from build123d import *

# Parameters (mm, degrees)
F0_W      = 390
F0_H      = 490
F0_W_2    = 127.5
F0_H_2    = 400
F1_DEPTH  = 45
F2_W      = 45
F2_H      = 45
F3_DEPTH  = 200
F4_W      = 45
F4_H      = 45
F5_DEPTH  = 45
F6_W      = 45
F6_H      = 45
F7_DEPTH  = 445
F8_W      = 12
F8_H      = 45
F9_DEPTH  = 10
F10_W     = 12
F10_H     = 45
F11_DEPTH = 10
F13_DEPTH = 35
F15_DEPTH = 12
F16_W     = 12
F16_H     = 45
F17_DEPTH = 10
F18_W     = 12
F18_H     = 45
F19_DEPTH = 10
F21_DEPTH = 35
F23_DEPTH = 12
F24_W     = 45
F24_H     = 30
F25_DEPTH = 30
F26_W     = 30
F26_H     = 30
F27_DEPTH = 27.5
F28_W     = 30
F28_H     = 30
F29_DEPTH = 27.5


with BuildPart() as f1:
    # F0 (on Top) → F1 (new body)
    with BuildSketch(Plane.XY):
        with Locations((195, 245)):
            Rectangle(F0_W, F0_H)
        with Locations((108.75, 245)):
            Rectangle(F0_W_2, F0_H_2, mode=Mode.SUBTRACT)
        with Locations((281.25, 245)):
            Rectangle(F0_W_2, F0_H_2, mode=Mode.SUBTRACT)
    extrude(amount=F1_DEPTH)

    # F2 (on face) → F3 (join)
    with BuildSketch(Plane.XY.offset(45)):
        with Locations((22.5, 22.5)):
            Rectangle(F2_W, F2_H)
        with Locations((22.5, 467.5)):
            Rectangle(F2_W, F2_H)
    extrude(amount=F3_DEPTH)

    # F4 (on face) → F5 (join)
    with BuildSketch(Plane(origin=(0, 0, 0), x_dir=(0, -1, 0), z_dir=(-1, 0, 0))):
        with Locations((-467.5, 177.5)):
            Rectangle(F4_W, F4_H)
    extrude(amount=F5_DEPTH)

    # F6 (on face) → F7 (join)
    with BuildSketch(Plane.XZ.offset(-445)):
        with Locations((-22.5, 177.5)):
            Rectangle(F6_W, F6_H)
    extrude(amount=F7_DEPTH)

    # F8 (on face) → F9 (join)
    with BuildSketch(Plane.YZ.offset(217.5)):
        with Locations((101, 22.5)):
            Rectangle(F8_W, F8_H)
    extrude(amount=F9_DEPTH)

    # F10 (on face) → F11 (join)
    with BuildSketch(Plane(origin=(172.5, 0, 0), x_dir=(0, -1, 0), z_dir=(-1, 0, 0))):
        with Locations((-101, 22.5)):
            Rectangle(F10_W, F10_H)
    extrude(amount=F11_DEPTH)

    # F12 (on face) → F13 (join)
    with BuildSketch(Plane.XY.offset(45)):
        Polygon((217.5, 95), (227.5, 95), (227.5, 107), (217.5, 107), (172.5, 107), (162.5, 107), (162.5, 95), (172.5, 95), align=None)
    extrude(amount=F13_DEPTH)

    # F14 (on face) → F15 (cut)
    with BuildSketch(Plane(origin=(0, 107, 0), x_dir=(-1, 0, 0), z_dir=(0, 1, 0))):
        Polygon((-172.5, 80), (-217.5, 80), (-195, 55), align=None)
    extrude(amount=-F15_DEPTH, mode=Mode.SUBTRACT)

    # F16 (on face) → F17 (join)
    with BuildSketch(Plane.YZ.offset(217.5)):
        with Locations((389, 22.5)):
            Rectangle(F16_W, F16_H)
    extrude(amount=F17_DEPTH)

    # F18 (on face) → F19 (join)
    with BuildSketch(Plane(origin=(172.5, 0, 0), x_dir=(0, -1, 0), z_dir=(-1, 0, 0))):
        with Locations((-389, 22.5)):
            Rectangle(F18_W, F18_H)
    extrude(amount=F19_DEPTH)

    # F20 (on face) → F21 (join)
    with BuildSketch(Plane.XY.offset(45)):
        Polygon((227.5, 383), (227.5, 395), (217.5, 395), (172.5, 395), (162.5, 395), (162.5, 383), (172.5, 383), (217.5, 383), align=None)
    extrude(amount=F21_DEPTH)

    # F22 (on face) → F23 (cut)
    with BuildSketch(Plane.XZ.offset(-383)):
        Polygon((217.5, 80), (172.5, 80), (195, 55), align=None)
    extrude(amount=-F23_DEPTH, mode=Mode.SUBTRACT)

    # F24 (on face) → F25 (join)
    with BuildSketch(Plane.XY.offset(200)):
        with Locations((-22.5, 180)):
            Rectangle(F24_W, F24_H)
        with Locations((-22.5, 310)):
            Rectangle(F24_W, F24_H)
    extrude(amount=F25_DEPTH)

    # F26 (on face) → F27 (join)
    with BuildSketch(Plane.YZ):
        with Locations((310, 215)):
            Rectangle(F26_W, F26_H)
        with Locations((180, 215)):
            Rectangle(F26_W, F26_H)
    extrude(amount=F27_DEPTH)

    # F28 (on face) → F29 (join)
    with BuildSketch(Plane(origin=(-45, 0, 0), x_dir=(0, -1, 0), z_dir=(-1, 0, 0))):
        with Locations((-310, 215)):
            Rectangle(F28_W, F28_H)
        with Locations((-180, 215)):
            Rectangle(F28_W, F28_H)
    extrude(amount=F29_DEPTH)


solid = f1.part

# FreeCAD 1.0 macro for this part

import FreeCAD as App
import Part
import Sketcher
Q = App.Units.Quantity


def add_polygon(sketch, points):
    """Adds a closed chain of lines whose ends are joined by coincident constraints."""
    first, n = sketch.GeometryCount, len(points)
    for a, b in zip(points, points[1:] + points[:1]):
        sketch.addGeometry(Part.LineSegment(App.Vector(*a, 0), App.Vector(*b, 0)), False)
    for i in range(n):
        sketch.addConstraint(Sketcher.Constraint("Coincident", first + i, 2, first + (i + 1) % n, 1))

doc = App.newDocument("Part")
body = doc.addObject("PartDesign::Body", "Body")

sketch1 = doc.addObject("Sketcher::SketchObject", "Sketch")
body.addObject(sketch1)
sketch1.AttachmentSupport = (doc.XY_Plane, [""])
sketch1.MapMode = "FlatFace"
add_polygon(sketch1, [(0, 490), (0, 0), (390, 0), (390, 490)])
add_polygon(sketch1, [(172, 45), (45, 45), (45, 445), (172, 445)])
add_polygon(sketch1, [(345, 45), (218, 45), (218, 445), (345, 445)])
sketch1.addConstraint([
    Sketcher.Constraint("Vertical", 0),
    Sketcher.Constraint("Horizontal", 1),
    Sketcher.Constraint("Vertical", 2),
    Sketcher.Constraint("Horizontal", 3),
    Sketcher.Constraint("Horizontal", 4),
    Sketcher.Constraint("Vertical", 5),
    Sketcher.Constraint("Horizontal", 6),
    Sketcher.Constraint("Vertical", 7),
    Sketcher.Constraint("Horizontal", 8),
    Sketcher.Constraint("Vertical", 9),
    Sketcher.Constraint("Horizontal", 10),
    Sketcher.Constraint("Vertical", 11),
    Sketcher.Constraint("Coincident", 0, 2, -1, 1),
    Sketcher.Constraint("Horizontal", 7, 2, 8, 2),
    Sketcher.Constraint("Horizontal", 6, 2, 9, 2),
    Sketcher.Constraint("Equal", 6, 8),
    Sketcher.Constraint("DistanceX", 1, 1, 1, 2, Q("390 mm")),
    Sketcher.Constraint("DistanceY", 0, 2, 0, 1, Q("490 mm")),
    Sketcher.Constraint("DistanceY", 5, 1, 5, 2, Q("400 mm")),
    Sketcher.Constraint("DistanceX", 4, 2, 4, 1, Q("127.5 mm")),
    Sketcher.Constraint("DistanceX", -1, 1, 4, 2, Q("45 mm")),
    Sketcher.Constraint("DistanceY", -1, 1, 4, 2, Q("45 mm")),
    Sketcher.Constraint("DistanceX", -1, 1, 10, 2, Q("345 mm")),
])
pad1 = doc.addObject("PartDesign::Pad", "Pad")
body.addObject(pad1)
pad1.Profile = sketch1
pad1.Length = 45

sketch2 = doc.addObject("Sketcher::SketchObject", "Sketch001")
body.addObject(sketch2)
sketch2.AttachmentSupport = (doc.XY_Plane, [""])
sketch2.MapMode = "FlatFace"
sketch2.AttachmentOffset = App.Placement(App.Vector(0, 0, 45), App.Rotation())
add_polygon(sketch2, [(0, 45), (0, 0), (45, 0), (45, 45)])
add_polygon(sketch2, [(0, 490), (0, 445), (45, 445), (45, 490)])
sketch2.addConstraint([
    Sketcher.Constraint("Vertical", 0),
    Sketcher.Constraint("Horizontal", 1),
    Sketcher.Constraint("Vertical", 2),
    Sketcher.Constraint("Horizontal", 3),
    Sketcher.Constraint("Vertical", 4),
    Sketcher.Constraint("Horizontal", 5),
    Sketcher.Constraint("Vertical", 6),
    Sketcher.Constraint("Horizontal", 7),
    Sketcher.Constraint("Coincident", 0, 2, -1, 1),
    Sketcher.Constraint("PointOnObject", 4, 2, -2),
    Sketcher.Constraint("Vertical", 2, 2, 5, 2),
    Sketcher.Constraint("Equal", 7, 0),
    Sketcher.Constraint("Equal", 2, 4),
    Sketcher.Constraint("DistanceX", 1, 1, 1, 2, Q("45 mm")),
    Sketcher.Constraint("DistanceY", -1, 1, 4, 2, Q("445 mm")),
])
pad2 = doc.addObject("PartDesign::Pad", "Pad001")
body.addObject(pad2)
pad2.Profile = sketch2
pad2.Length = 200

sketch3 = doc.addObject("Sketcher::SketchObject", "Sketch002")
body.addObject(sketch3)
sketch3.AttachmentSupport = (doc.YZ_Plane, [""])
sketch3.MapMode = "FlatFace"
add_polygon(sketch3, [(490, 200), (490, 155), (445, 155), (445, 200)])
sketch3.addConstraint([
    Sketcher.Constraint("Vertical", 0),
    Sketcher.Constraint("Horizontal", 1),
    Sketcher.Constraint("Vertical", 2),
    Sketcher.Constraint("Horizontal", 3),
    Sketcher.Constraint("Equal", 3, 0),
    Sketcher.Constraint("DistanceX", 1, 2, 1, 1, Q("45 mm")),
    Sketcher.Constraint("DistanceX", -1, 1, 0, 2, Q("490 mm")),
    Sketcher.Constraint("DistanceY", -1, 1, 0, 2, Q("155 mm")),
])
pad3 = doc.addObject("PartDesign::Pad", "Pad002")
body.addObject(pad3)
pad3.Profile = sketch3
pad3.Length = 45
pad3.Reversed = True

sketch4 = doc.addObject("Sketcher::SketchObject", "Sketch003")
body.addObject(sketch4)
sketch4.AttachmentSupport = (doc.XZ_Plane, [""])
sketch4.MapMode = "FlatFace"
sketch4.AttachmentOffset = App.Placement(App.Vector(0, 0, -445), App.Rotation())
add_polygon(sketch4, [(-45, 200), (-45, 155), (0, 155), (0, 200)])
sketch4.addConstraint([
    Sketcher.Constraint("Vertical", 0),
    Sketcher.Constraint("Horizontal", 1),
    Sketcher.Constraint("Vertical", 2),
    Sketcher.Constraint("Horizontal", 3),
    Sketcher.Constraint("PointOnObject", 1, 2, -2),
    Sketcher.Constraint("Equal", 3, 0),
    Sketcher.Constraint("DistanceX", 1, 1, 1, 2, Q("45 mm")),
    Sketcher.Constraint("DistanceY", -1, 1, 0, 2, Q("155 mm")),
])
pad4 = doc.addObject("PartDesign::Pad", "Pad003")
body.addObject(pad4)
pad4.Profile = sketch4
pad4.Length = 445

sketch5 = doc.addObject("Sketcher::SketchObject", "Sketch004")
body.addObject(sketch5)
sketch5.AttachmentSupport = (doc.YZ_Plane, [""])
sketch5.MapMode = "FlatFace"
sketch5.AttachmentOffset = App.Placement(App.Vector(0, 0, 217.5), App.Rotation())
add_polygon(sketch5, [(95, 45), (95, 0), (107, 0), (107, 45)])
sketch5.addConstraint([
    Sketcher.Constraint("Vertical", 0),
    Sketcher.Constraint("Horizontal", 1),
    Sketcher.Constraint("Vertical", 2),
    Sketcher.Constraint("Horizontal", 3),
    Sketcher.Constraint("PointOnObject", 0, 2, -1),
    Sketcher.Constraint("DistanceX", 1, 1, 1, 2, Q("12 mm")),
    Sketcher.Constraint("DistanceY", 0, 2, 0, 1, Q("45 mm")),
    Sketcher.Constraint("DistanceX", -1, 1, 0, 2, Q("95 mm")),
])
pad5 = doc.addObject("PartDesign::Pad", "Pad004")
body.addObject(pad5)
pad5.Profile = sketch5
pad5.Length = 10

sketch6 = doc.addObject("Sketcher::SketchObject", "Sketch005")
body.addObject(sketch6)
sketch6.AttachmentSupport = (doc.YZ_Plane, [""])
sketch6.MapMode = "FlatFace"
sketch6.AttachmentOffset = App.Placement(App.Vector(0, 0, 172.5), App.Rotation())
add_polygon(sketch6, [(107, 45), (107, 0), (95, 0), (95, 45)])
sketch6.addConstraint([
    Sketcher.Constraint("Vertical", 0),
    Sketcher.Constraint("Horizontal", 1),
    Sketcher.Constraint("Vertical", 2),
    Sketcher.Constraint("Horizontal", 3),
    Sketcher.Constraint("PointOnObject", 0, 2, -1),
    Sketcher.Constraint("DistanceX", 1, 2, 1, 1, Q("12 mm")),
    Sketcher.Constraint("DistanceY", 0, 2, 0, 1, Q("45 mm")),
    Sketcher.Constraint("DistanceX", -1, 1, 0, 2, Q("107 mm")),
])
pad6 = doc.addObject("PartDesign::Pad", "Pad005")
body.addObject(pad6)
pad6.Profile = sketch6
pad6.Length = 10
pad6.Reversed = True

sketch7 = doc.addObject("Sketcher::SketchObject", "Sketch006")
body.addObject(sketch7)
sketch7.AttachmentSupport = (doc.XY_Plane, [""])
sketch7.MapMode = "FlatFace"
sketch7.AttachmentOffset = App.Placement(App.Vector(0, 0, 45), App.Rotation())
add_polygon(sketch7, [(228, 95), (228, 107), (162, 107), (162, 95)])
sketch7.addConstraint([
    Sketcher.Constraint("Vertical", 0),
    Sketcher.Constraint("Horizontal", 1),
    Sketcher.Constraint("Vertical", 2),
    Sketcher.Constraint("Horizontal", 3),
    Sketcher.Constraint("DistanceX", 1, 2, 1, 1, Q("65 mm")),
    Sketcher.Constraint("DistanceY", 0, 1, 0, 2, Q("12 mm")),
    Sketcher.Constraint("DistanceY", -1, 1, 0, 2, Q("107 mm")),
    Sketcher.Constraint("DistanceX", -1, 1, 0, 2, Q("227.5 mm")),
])
pad7 = doc.addObject("PartDesign::Pad", "Pad006")
body.addObject(pad7)
pad7.Profile = sketch7
pad7.Length = 35

sketch8 = doc.addObject("Sketcher::SketchObject", "Sketch007")
body.addObject(sketch8)
sketch8.AttachmentSupport = (doc.XZ_Plane, [""])
sketch8.MapMode = "FlatFace"
sketch8.AttachmentOffset = App.Placement(App.Vector(0, 0, -107), App.Rotation())
add_polygon(sketch8, [(172, 80), (218, 80), (195, 55)])
sketch8.addConstraint([
    Sketcher.Constraint("Horizontal", 0),
    Sketcher.Constraint("Equal", 1, 2),
    Sketcher.Constraint("DistanceX", 0, 1, 0, 2, Q("45 mm")),
    Sketcher.Constraint("DistanceY", -1, 1, 0, 2, Q("80 mm")),
    Sketcher.Constraint("DistanceX", -1, 1, 1, 2, Q("195 mm")),
    Sketcher.Constraint("DistanceY", -1, 1, 1, 2, Q("55 mm")),
])
pocket1 = doc.addObject("PartDesign::Pocket", "Pocket")
body.addObject(pocket1)
pocket1.Profile = sketch8
pocket1.Length = 12
pocket1.Reversed = True

sketch9 = doc.addObject("Sketcher::SketchObject", "Sketch008")
body.addObject(sketch9)
sketch9.AttachmentSupport = (doc.YZ_Plane, [""])
sketch9.MapMode = "FlatFace"
sketch9.AttachmentOffset = App.Placement(App.Vector(0, 0, 217.5), App.Rotation())
add_polygon(sketch9, [(383, 45), (383, 0), (395, 0), (395, 45)])
sketch9.addConstraint([
    Sketcher.Constraint("Vertical", 0),
    Sketcher.Constraint("Horizontal", 1),
    Sketcher.Constraint("Vertical", 2),
    Sketcher.Constraint("Horizontal", 3),
    Sketcher.Constraint("PointOnObject", 0, 2, -1),
    Sketcher.Constraint("DistanceX", 1, 1, 1, 2, Q("12 mm")),
    Sketcher.Constraint("DistanceY", 0, 2, 0, 1, Q("45 mm")),
    Sketcher.Constraint("DistanceX", -1, 1, 0, 2, Q("383 mm")),
])
pad8 = doc.addObject("PartDesign::Pad", "Pad007")
body.addObject(pad8)
pad8.Profile = sketch9
pad8.Length = 10

sketch10 = doc.addObject("Sketcher::SketchObject", "Sketch009")
body.addObject(sketch10)
sketch10.AttachmentSupport = (doc.YZ_Plane, [""])
sketch10.MapMode = "FlatFace"
sketch10.AttachmentOffset = App.Placement(App.Vector(0, 0, 172.5), App.Rotation())
add_polygon(sketch10, [(395, 45), (395, 0), (383, 0), (383, 45)])
sketch10.addConstraint([
    Sketcher.Constraint("Vertical", 0),
    Sketcher.Constraint("Horizontal", 1),
    Sketcher.Constraint("Vertical", 2),
    Sketcher.Constraint("Horizontal", 3),
    Sketcher.Constraint("PointOnObject", 0, 2, -1),
    Sketcher.Constraint("DistanceX", 1, 2, 1, 1, Q("12 mm")),
    Sketcher.Constraint("DistanceY", 0, 2, 0, 1, Q("45 mm")),
    Sketcher.Constraint("DistanceX", -1, 1, 0, 2, Q("395 mm")),
])
pad9 = doc.addObject("PartDesign::Pad", "Pad008")
body.addObject(pad9)
pad9.Profile = sketch10
pad9.Length = 10
pad9.Reversed = True

sketch11 = doc.addObject("Sketcher::SketchObject", "Sketch010")
body.addObject(sketch11)
sketch11.AttachmentSupport = (doc.XY_Plane, [""])
sketch11.MapMode = "FlatFace"
sketch11.AttachmentOffset = App.Placement(App.Vector(0, 0, 45), App.Rotation())
add_polygon(sketch11, [(228, 383), (228, 395), (162, 395), (162, 383)])
sketch11.addConstraint([
    Sketcher.Constraint("Vertical", 0),
    Sketcher.Constraint("Horizontal", 1),
    Sketcher.Constraint("Vertical", 2),
    Sketcher.Constraint("Horizontal", 3),
    Sketcher.Constraint("DistanceX", 1, 2, 1, 1, Q("65 mm")),
    Sketcher.Constraint("DistanceY", 0, 1, 0, 2, Q("12 mm")),
    Sketcher.Constraint("DistanceY", -1, 1, 0, 2, Q("395 mm")),
    Sketcher.Constraint("DistanceX", -1, 1, 0, 2, Q("227.5 mm")),
])
pad10 = doc.addObject("PartDesign::Pad", "Pad009")
body.addObject(pad10)
pad10.Profile = sketch11
pad10.Length = 35

sketch12 = doc.addObject("Sketcher::SketchObject", "Sketch011")
body.addObject(sketch12)
sketch12.AttachmentSupport = (doc.XZ_Plane, [""])
sketch12.MapMode = "FlatFace"
sketch12.AttachmentOffset = App.Placement(App.Vector(0, 0, -383), App.Rotation())
add_polygon(sketch12, [(218, 80), (172, 80), (195, 55)])
sketch12.addConstraint([
    Sketcher.Constraint("Horizontal", 0),
    Sketcher.Constraint("Equal", 1, 2),
    Sketcher.Constraint("DistanceX", 0, 2, 0, 1, Q("45 mm")),
    Sketcher.Constraint("DistanceY", -1, 1, 0, 2, Q("80 mm")),
    Sketcher.Constraint("DistanceX", -1, 1, 1, 2, Q("195 mm")),
    Sketcher.Constraint("DistanceY", -1, 1, 1, 2, Q("55 mm")),
])
pocket2 = doc.addObject("PartDesign::Pocket", "Pocket001")
body.addObject(pocket2)
pocket2.Profile = sketch12
pocket2.Length = 12

sketch13 = doc.addObject("Sketcher::SketchObject", "Sketch012")
body.addObject(sketch13)
sketch13.AttachmentSupport = (doc.XY_Plane, [""])
sketch13.MapMode = "FlatFace"
sketch13.AttachmentOffset = App.Placement(App.Vector(0, 0, 200), App.Rotation())
add_polygon(sketch13, [(-45, 195), (-45, 165), (0, 165), (0, 195)])
add_polygon(sketch13, [(-45, 325), (-45, 295), (0, 295), (0, 325)])
sketch13.addConstraint([
    Sketcher.Constraint("Vertical", 0),
    Sketcher.Constraint("Horizontal", 1),
    Sketcher.Constraint("Vertical", 2),
    Sketcher.Constraint("Horizontal", 3),
    Sketcher.Constraint("Vertical", 4),
    Sketcher.Constraint("Horizontal", 5),
    Sketcher.Constraint("Vertical", 6),
    Sketcher.Constraint("Horizontal", 7),
    Sketcher.Constraint("PointOnObject", 1, 2, -2),
    Sketcher.Constraint("PointOnObject", 5, 2, -2),
    Sketcher.Constraint("Vertical", 3, 2, 4, 2),
    Sketcher.Constraint("Equal", 2, 4),
    Sketcher.Constraint("DistanceX", 1, 1, 1, 2, Q("45 mm")),
    Sketcher.Constraint("DistanceY", 0, 2, 0, 1, Q("30 mm")),
    Sketcher.Constraint("DistanceY", -1, 1, 0, 2, Q("165 mm")),
    Sketcher.Constraint("DistanceY", -1, 1, 4, 2, Q("295 mm")),
])
pad11 = doc.addObject("PartDesign::Pad", "Pad010")
body.addObject(pad11)
pad11.Profile = sketch13
pad11.Length = 30

sketch14 = doc.addObject("Sketcher::SketchObject", "Sketch013")
body.addObject(sketch14)
sketch14.AttachmentSupport = (doc.YZ_Plane, [""])
sketch14.MapMode = "FlatFace"
add_polygon(sketch14, [(295, 230), (295, 200), (325, 200), (325, 230)])
add_polygon(sketch14, [(165, 230), (165, 200), (195, 200), (195, 230)])
sketch14.addConstraint([
    Sketcher.Constraint("Vertical", 0),
    Sketcher.Constraint("Horizontal", 1),
    Sketcher.Constraint("Vertical", 2),
    Sketcher.Constraint("Horizontal", 3),
    Sketcher.Constraint("Vertical", 4),
    Sketcher.Constraint("Horizontal", 5),
    Sketcher.Constraint("Vertical", 6),
    Sketcher.Constraint("Horizontal", 7),
    Sketcher.Constraint("Horizontal", 1, 2, 4, 2),
    Sketcher.Constraint("Horizontal", 3, 2, 6, 2),
    Sketcher.Constraint("Equal", 3, 5),
    Sketcher.Constraint("Equal", 7, 0),
    Sketcher.Constraint("DistanceX", 1, 1, 1, 2, Q("30 mm")),
    Sketcher.Constraint("DistanceX", -1, 1, 0, 2, Q("295 mm")),
    Sketcher.Constraint("DistanceY", -1, 1, 0, 2, Q("200 mm")),
    Sketcher.Constraint("DistanceX", -1, 1, 4, 2, Q("165 mm")),
])
pad12 = doc.addObject("PartDesign::Pad", "Pad011")
body.addObject(pad12)
pad12.Profile = sketch14
pad12.Length = 27.5

sketch15 = doc.addObject("Sketcher::SketchObject", "Sketch014")
body.addObject(sketch15)
sketch15.AttachmentSupport = (doc.YZ_Plane, [""])
sketch15.MapMode = "FlatFace"
sketch15.AttachmentOffset = App.Placement(App.Vector(0, 0, -45), App.Rotation())
add_polygon(sketch15, [(325, 230), (325, 200), (295, 200), (295, 230)])
add_polygon(sketch15, [(195, 230), (195, 200), (165, 200), (165, 230)])
sketch15.addConstraint([
    Sketcher.Constraint("Vertical", 0),
    Sketcher.Constraint("Horizontal", 1),
    Sketcher.Constraint("Vertical", 2),
    Sketcher.Constraint("Horizontal", 3),
    Sketcher.Constraint("Vertical", 4),
    Sketcher.Constraint("Horizontal", 5),
    Sketcher.Constraint("Vertical", 6),
    Sketcher.Constraint("Horizontal", 7),
    Sketcher.Constraint("Horizontal", 1, 2, 4, 2),
    Sketcher.Constraint("Horizontal", 3, 2, 6, 2),
    Sketcher.Constraint("Equal", 3, 5),
    Sketcher.Constraint("Equal", 7, 0),
    Sketcher.Constraint("DistanceX", 1, 2, 1, 1, Q("30 mm")),
    Sketcher.Constraint("DistanceX", -1, 1, 0, 2, Q("325 mm")),
    Sketcher.Constraint("DistanceY", -1, 1, 0, 2, Q("200 mm")),
    Sketcher.Constraint("DistanceX", -1, 1, 4, 2, Q("195 mm")),
])
pad13 = doc.addObject("PartDesign::Pad", "Pad012")
body.addObject(pad13)
pad13.Profile = sketch15
pad13.Length = 27.5
pad13.Reversed = True

doc.recompute()
